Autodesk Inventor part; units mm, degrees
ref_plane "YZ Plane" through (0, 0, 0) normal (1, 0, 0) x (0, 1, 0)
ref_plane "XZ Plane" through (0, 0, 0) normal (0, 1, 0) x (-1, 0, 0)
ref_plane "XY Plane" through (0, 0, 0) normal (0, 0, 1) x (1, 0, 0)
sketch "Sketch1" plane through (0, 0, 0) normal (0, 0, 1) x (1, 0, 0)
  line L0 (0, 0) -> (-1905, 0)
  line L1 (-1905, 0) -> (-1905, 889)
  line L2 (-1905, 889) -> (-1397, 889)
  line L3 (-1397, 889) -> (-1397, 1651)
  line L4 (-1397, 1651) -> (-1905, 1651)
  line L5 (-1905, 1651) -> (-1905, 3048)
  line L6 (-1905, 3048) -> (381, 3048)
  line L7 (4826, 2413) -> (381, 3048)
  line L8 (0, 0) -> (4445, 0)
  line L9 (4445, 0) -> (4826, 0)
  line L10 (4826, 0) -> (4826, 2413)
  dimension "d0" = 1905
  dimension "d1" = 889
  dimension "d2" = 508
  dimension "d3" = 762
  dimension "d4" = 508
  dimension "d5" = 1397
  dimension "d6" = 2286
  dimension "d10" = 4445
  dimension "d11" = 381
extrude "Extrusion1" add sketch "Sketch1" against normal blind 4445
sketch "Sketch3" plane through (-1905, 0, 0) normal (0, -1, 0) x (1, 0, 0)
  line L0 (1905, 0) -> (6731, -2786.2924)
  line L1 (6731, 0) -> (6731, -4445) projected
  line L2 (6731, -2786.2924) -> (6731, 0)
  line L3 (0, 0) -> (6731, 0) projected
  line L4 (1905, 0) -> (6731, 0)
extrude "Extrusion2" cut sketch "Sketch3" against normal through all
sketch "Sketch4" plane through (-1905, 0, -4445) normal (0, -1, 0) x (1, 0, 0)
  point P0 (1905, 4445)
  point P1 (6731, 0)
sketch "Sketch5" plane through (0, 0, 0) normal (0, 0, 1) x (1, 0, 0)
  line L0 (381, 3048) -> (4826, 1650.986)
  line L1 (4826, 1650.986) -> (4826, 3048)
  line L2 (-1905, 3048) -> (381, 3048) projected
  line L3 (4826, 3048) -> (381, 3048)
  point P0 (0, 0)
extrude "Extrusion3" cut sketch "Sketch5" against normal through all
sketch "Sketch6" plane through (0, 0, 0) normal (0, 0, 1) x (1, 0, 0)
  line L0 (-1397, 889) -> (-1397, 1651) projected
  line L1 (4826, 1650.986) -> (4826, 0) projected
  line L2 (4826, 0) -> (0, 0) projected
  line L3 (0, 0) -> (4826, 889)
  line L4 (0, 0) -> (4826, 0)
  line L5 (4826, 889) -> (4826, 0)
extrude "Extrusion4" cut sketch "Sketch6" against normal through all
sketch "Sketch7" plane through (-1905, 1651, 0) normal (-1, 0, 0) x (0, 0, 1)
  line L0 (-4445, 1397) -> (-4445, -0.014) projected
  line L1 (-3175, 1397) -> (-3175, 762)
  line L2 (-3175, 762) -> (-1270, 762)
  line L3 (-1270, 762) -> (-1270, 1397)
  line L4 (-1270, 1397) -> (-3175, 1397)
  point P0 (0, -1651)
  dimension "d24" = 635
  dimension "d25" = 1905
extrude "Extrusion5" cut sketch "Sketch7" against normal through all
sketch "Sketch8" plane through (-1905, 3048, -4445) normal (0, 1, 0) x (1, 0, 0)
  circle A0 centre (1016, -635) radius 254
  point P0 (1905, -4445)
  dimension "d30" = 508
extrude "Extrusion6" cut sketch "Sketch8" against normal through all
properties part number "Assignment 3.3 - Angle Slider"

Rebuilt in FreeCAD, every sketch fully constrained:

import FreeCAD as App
import Part
import Sketcher
from FreeCAD import Vector
Q = App.Units.Quantity

doc = App.newDocument("Part")
body = doc.addObject("PartDesign::Body", "Body")

# Sketch on XY plane
sketch1 = doc.addObject("Sketcher::SketchObject", "Sketch")
body.addObject(sketch1)
sketch1.AttachmentSupport = (doc.XY_Plane, [""])
sketch1.MapMode = "FlatFace"
sketch1.addGeometry([
    Part.LineSegment(Vector(-1905, 0, 0), Vector(4826, 0, 0)),  # 0
    Part.LineSegment(Vector(4826, 0, 0), Vector(4826, 2413, 0)),  # 1
    Part.LineSegment(Vector(4826, 2413, 0), Vector(381, 3048, 0)),  # 2
    Part.LineSegment(Vector(381, 3048, 0), Vector(-1905, 3048, 0)),  # 3
    Part.LineSegment(Vector(-1905, 3048, 0), Vector(-1905, 1651, 0)),  # 4
    Part.LineSegment(Vector(-1905, 1651, 0), Vector(-1397, 1651, 0)),  # 5
    Part.LineSegment(Vector(-1397, 1651, 0), Vector(-1397, 889, 0)),  # 6
    Part.LineSegment(Vector(-1397, 889, 0), Vector(-1905, 889, 0)),  # 7
    Part.LineSegment(Vector(-1905, 889, 0), Vector(-1905, 0, 0)),  # 8
], False)
sketch1.addConstraint([
    Sketcher.Constraint("Coincident", 0, 2, 1, 1),
    Sketcher.Constraint("Coincident", 1, 2, 2, 1),
    Sketcher.Constraint("Coincident", 2, 2, 3, 1),
    Sketcher.Constraint("Coincident", 3, 2, 4, 1),
    Sketcher.Constraint("Coincident", 4, 2, 5, 1),
    Sketcher.Constraint("Coincident", 5, 2, 6, 1),
    Sketcher.Constraint("Coincident", 6, 2, 7, 1),
    Sketcher.Constraint("Coincident", 7, 2, 8, 1),
    Sketcher.Constraint("Coincident", 8, 2, 0, 1),
    Sketcher.Constraint("Horizontal", 0),
    Sketcher.Constraint("Vertical", 1),
    Sketcher.Constraint("Horizontal", 3),
    Sketcher.Constraint("Vertical", 4),
    Sketcher.Constraint("Horizontal", 5),
    Sketcher.Constraint("Vertical", 6),
    Sketcher.Constraint("Horizontal", 7),
    Sketcher.Constraint("Vertical", 8),
    Sketcher.Constraint("PointOnObject", 0, 2, -1),
    Sketcher.Constraint("Vertical", 4, 2, 7, 2),
    Sketcher.Constraint("DistanceX", 3, 2, 3, 1, Q("90 in")),
    Sketcher.Constraint("DistanceX", 5, 1, 5, 2, Q("20 in")),
    Sketcher.Constraint("DistanceY", 4, 2, 4, 1, Q("55 in")),
    Sketcher.Constraint("DistanceY", 6, 2, 6, 1, Q("30 in")),
    Sketcher.Constraint("DistanceY", 8, 2, 8, 1, Q("35 in")),
    Sketcher.Constraint("DistanceX", -1, 1, 2, 2, Q("15 in")),
    Sketcher.Constraint("DistanceX", 2, 2, 1, 2, Q("175 in")),
    Sketcher.Constraint("DistanceY", 4, 2, 1, 2, Q("30 in")),
])
pad1 = doc.addObject("PartDesign::Pad", "Pad")
body.addObject(pad1)
pad1.Profile = sketch1
pad1.Length = Q("175 in")
pad1.Reversed = True

# Sketch on XZ plane
sketch2 = doc.addObject("Sketcher::SketchObject", "Sketch001")
body.addObject(sketch2)
sketch2.AttachmentSupport = (doc.XZ_Plane, [""])
sketch2.MapMode = "FlatFace"
sketch2.addGeometry([
    Part.LineSegment(Vector(4826, 0, 0), Vector(0, 0, 0)),
    Part.LineSegment(Vector(0, 0, 0), Vector(4826, -2786, 0)),
    Part.LineSegment(Vector(4826, -2786, 0), Vector(4826, 0, 0)),
], False)
sketch2.addConstraint([
    Sketcher.Constraint("Coincident", 0, 2, 1, 1),
    Sketcher.Constraint("Coincident", 1, 2, 2, 1),
    Sketcher.Constraint("Coincident", 2, 2, 0, 1),
    Sketcher.Constraint("Horizontal", 0),
    Sketcher.Constraint("Vertical", 2),
    Sketcher.Constraint("Coincident", 0, 2, -1, 1),
    Sketcher.Constraint("DistanceX", 0, 2, 0, 1, Q("190 in")),
    Sketcher.Constraint("Angle", 1, Q("-30 deg")),
])
pocket1 = doc.addObject("PartDesign::Pocket", "Pocket")
body.addObject(pocket1)
pocket1.Profile = sketch2
pocket1.Type = "ThroughAll"

# Sketch on XY plane
sketch3 = doc.addObject("Sketcher::SketchObject", "Sketch002")
body.addObject(sketch3)
sketch3.AttachmentSupport = (doc.XY_Plane, [""])
sketch3.MapMode = "FlatFace"
sketch3.addGeometry([
    Part.LineSegment(Vector(4826, 3048, 0), Vector(381, 3048, 0)),
    Part.LineSegment(Vector(381, 3048, 0), Vector(4826, 1651, 0)),
    Part.LineSegment(Vector(4826, 1651, 0), Vector(4826, 3048, 0)),
], False)
sketch3.addConstraint([
    Sketcher.Constraint("Coincident", 0, 2, 1, 1),
    Sketcher.Constraint("Coincident", 1, 2, 2, 1),
    Sketcher.Constraint("Coincident", 2, 2, 0, 1),
    Sketcher.Constraint("Horizontal", 0),
    Sketcher.Constraint("Vertical", 2),
    Sketcher.Constraint("DistanceX", 0, 2, 0, 1, Q("175 in")),
    Sketcher.Constraint("DistanceX", -1, 1, 0, 2, Q("15 in")),
    Sketcher.Constraint("DistanceY", -1, 1, 0, 2, Q("120 in")),
    Sketcher.Constraint("DistanceY", 2, 1, 2, 2, 1397.014),
])
pocket2 = doc.addObject("PartDesign::Pocket", "Pocket001")
body.addObject(pocket2)
pocket2.Profile = sketch3
pocket2.Type = "ThroughAll"

# Sketch on XY plane
sketch4 = doc.addObject("Sketcher::SketchObject", "Sketch003")
body.addObject(sketch4)
sketch4.AttachmentSupport = (doc.XY_Plane, [""])
sketch4.MapMode = "FlatFace"
sketch4.addGeometry([
    Part.LineSegment(Vector(4826, 0, 0), Vector(4826, 889, 0)),
    Part.LineSegment(Vector(4826, 889, 0), Vector(0, 0, 0)),
    Part.LineSegment(Vector(0, 0, 0), Vector(4826, 0, 0)),
], False)
sketch4.addConstraint([
    Sketcher.Constraint("Coincident", 0, 2, 1, 1),
    Sketcher.Constraint("Coincident", 1, 2, 2, 1),
    Sketcher.Constraint("Coincident", 2, 2, 0, 1),
    Sketcher.Constraint("Vertical", 0),
    Sketcher.Constraint("Horizontal", 2),
    Sketcher.Constraint("Coincident", 1, 2, -1, 1),
    Sketcher.Constraint("DistanceX", 2, 1, 2, 2, Q("190 in")),
    Sketcher.Constraint("DistanceY", 0, 1, 0, 2, Q("35 in")),
])
pocket3 = doc.addObject("PartDesign::Pocket", "Pocket002")
body.addObject(pocket3)
pocket3.Profile = sketch4
pocket3.Type = "ThroughAll"

# Sketch on YZ plane
sketch5 = doc.addObject("Sketcher::SketchObject", "Sketch004")
body.addObject(sketch5)
sketch5.AttachmentSupport = (doc.YZ_Plane, [""])
sketch5.MapMode = "FlatFace"
sketch5.AttachmentOffset = App.Placement(Vector(0, 0, -75 * 25.4), App.Rotation())
sketch5.addGeometry([
    Part.LineSegment(Vector(3048, -1270, 0), Vector(3048, -3175, 0)),
    Part.LineSegment(Vector(3048, -3175, 0), Vector(2413, -3175, 0)),
    Part.LineSegment(Vector(2413, -3175, 0), Vector(2413, -1270, 0)),
    Part.LineSegment(Vector(2413, -1270, 0), Vector(3048, -1270, 0)),
], False)
sketch5.addConstraint([
    Sketcher.Constraint("Coincident", 0, 2, 1, 1),
    Sketcher.Constraint("Coincident", 1, 2, 2, 1),
    Sketcher.Constraint("Coincident", 2, 2, 3, 1),
    Sketcher.Constraint("Coincident", 3, 2, 0, 1),
    Sketcher.Constraint("Vertical", 0),
    Sketcher.Constraint("Horizontal", 1),
    Sketcher.Constraint("Vertical", 2),
    Sketcher.Constraint("Horizontal", 3),
    Sketcher.Constraint("DistanceX", 1, 2, 1, 1, Q("25 in")),
    Sketcher.Constraint("DistanceY", 0, 2, 0, 1, Q("75 in")),
    Sketcher.Constraint("DistanceX", -1, 1, 0, 2, Q("120 in")),
    Sketcher.Constraint("DistanceY", 0, 2, -1, 1, Q("125 in")),
])
pocket4 = doc.addObject("PartDesign::Pocket", "Pocket003")
body.addObject(pocket4)
pocket4.Profile = sketch5
pocket4.Type = "ThroughAll"
pocket4.Reversed = True

# Sketch on XZ plane
sketch6 = doc.addObject("Sketcher::SketchObject", "Sketch005")
body.addObject(sketch6)
sketch6.AttachmentSupport = (doc.XZ_Plane, [""])
sketch6.MapMode = "FlatFace"
sketch6.AttachmentOffset = App.Placement(Vector(0, 0, -120 * 25.4), App.Rotation())
sketch6.addGeometry(Part.Circle(Vector(-889, -3810, 0), Vector(0, 0, 1), 254), False)
sketch6.addConstraint([
    Sketcher.Constraint("Diameter", 0, Q("20 in")),
    Sketcher.Constraint("DistanceX", 0, 3, -1, 1, Q("35 in")),
    Sketcher.Constraint("DistanceY", 0, 3, -1, 1, Q("150 in")),
])
pocket5 = doc.addObject("PartDesign::Pocket", "Pocket004")
body.addObject(pocket5)
pocket5.Profile = sketch6
pocket5.Type = "ThroughAll"
pocket5.Reversed = True

doc.recompute()
